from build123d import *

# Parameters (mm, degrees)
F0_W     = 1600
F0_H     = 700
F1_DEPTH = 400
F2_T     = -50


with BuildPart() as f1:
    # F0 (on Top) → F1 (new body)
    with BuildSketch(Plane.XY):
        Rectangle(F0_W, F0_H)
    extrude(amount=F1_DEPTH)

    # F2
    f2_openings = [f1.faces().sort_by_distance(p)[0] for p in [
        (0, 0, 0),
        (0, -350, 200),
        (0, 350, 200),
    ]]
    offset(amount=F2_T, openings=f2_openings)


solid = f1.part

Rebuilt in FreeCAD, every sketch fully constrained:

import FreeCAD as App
import Part
import Sketcher
from FreeCAD import Vector
Q = App.Units.Quantity


def faces_at(feature, points):
    """Names of the faces that lie closest to the given points."""
    faces = feature.Shape.Faces
    near = lambda p: min(range(len(faces)), key=lambda i: faces[i].distToShape(Part.Vertex(*p))[0])
    return sorted({f"Face{near(p) + 1}" for p in points})


def add_polygon(sketch, points):
    """Adds a closed chain of lines whose ends are joined by coincident constraints."""
    first, n = sketch.GeometryCount, len(points)
    for a, b in zip(points, points[1:] + points[:1]):
        sketch.addGeometry(Part.LineSegment(App.Vector(*a, 0), App.Vector(*b, 0)), False)
    for i in range(n):
        sketch.addConstraint(Sketcher.Constraint("Coincident", first + i, 2, first + (i + 1) % n, 1))

doc = App.newDocument("Part")
body = doc.addObject("PartDesign::Body", "Body")

sketch1 = body.newObject("Sketcher::SketchObject", "Sketch")
sketch1.AttachmentSupport = (doc.getObject("XY_Plane"), [""])
sketch1.MapMode = "FlatFace"
add_polygon(sketch1, [(-800, 350), (-800, -350), (800, -350), (800, 350)])
sketch1.addConstraint([
    Sketcher.Constraint("Vertical", 0),
    Sketcher.Constraint("Horizontal", 1),
    Sketcher.Constraint("Vertical", 2),
    Sketcher.Constraint("Horizontal", 3),
    Sketcher.Constraint("Symmetric", 0, 2, 2, 2, -1, 1),
    Sketcher.Constraint("DistanceX", 1, 1, 1, 2, Q("1600 mm")),
    Sketcher.Constraint("DistanceY", 0, 2, 0, 1, Q("700 mm")),
])
pad1 = body.newObject("PartDesign::Pad", "Pad")
pad1.Profile = sketch1
pad1.Length = 400
doc.recompute()

thickness = body.newObject("PartDesign::Thickness", "Thickness")
thickness.Base = (pad1, faces_at(pad1, [(0, 0, 0), (0, -350, 200), (0, 350, 200)]))
thickness.Value = 50
thickness.Reversed = True
thickness.Join = "Arc"

doc.recompute()
